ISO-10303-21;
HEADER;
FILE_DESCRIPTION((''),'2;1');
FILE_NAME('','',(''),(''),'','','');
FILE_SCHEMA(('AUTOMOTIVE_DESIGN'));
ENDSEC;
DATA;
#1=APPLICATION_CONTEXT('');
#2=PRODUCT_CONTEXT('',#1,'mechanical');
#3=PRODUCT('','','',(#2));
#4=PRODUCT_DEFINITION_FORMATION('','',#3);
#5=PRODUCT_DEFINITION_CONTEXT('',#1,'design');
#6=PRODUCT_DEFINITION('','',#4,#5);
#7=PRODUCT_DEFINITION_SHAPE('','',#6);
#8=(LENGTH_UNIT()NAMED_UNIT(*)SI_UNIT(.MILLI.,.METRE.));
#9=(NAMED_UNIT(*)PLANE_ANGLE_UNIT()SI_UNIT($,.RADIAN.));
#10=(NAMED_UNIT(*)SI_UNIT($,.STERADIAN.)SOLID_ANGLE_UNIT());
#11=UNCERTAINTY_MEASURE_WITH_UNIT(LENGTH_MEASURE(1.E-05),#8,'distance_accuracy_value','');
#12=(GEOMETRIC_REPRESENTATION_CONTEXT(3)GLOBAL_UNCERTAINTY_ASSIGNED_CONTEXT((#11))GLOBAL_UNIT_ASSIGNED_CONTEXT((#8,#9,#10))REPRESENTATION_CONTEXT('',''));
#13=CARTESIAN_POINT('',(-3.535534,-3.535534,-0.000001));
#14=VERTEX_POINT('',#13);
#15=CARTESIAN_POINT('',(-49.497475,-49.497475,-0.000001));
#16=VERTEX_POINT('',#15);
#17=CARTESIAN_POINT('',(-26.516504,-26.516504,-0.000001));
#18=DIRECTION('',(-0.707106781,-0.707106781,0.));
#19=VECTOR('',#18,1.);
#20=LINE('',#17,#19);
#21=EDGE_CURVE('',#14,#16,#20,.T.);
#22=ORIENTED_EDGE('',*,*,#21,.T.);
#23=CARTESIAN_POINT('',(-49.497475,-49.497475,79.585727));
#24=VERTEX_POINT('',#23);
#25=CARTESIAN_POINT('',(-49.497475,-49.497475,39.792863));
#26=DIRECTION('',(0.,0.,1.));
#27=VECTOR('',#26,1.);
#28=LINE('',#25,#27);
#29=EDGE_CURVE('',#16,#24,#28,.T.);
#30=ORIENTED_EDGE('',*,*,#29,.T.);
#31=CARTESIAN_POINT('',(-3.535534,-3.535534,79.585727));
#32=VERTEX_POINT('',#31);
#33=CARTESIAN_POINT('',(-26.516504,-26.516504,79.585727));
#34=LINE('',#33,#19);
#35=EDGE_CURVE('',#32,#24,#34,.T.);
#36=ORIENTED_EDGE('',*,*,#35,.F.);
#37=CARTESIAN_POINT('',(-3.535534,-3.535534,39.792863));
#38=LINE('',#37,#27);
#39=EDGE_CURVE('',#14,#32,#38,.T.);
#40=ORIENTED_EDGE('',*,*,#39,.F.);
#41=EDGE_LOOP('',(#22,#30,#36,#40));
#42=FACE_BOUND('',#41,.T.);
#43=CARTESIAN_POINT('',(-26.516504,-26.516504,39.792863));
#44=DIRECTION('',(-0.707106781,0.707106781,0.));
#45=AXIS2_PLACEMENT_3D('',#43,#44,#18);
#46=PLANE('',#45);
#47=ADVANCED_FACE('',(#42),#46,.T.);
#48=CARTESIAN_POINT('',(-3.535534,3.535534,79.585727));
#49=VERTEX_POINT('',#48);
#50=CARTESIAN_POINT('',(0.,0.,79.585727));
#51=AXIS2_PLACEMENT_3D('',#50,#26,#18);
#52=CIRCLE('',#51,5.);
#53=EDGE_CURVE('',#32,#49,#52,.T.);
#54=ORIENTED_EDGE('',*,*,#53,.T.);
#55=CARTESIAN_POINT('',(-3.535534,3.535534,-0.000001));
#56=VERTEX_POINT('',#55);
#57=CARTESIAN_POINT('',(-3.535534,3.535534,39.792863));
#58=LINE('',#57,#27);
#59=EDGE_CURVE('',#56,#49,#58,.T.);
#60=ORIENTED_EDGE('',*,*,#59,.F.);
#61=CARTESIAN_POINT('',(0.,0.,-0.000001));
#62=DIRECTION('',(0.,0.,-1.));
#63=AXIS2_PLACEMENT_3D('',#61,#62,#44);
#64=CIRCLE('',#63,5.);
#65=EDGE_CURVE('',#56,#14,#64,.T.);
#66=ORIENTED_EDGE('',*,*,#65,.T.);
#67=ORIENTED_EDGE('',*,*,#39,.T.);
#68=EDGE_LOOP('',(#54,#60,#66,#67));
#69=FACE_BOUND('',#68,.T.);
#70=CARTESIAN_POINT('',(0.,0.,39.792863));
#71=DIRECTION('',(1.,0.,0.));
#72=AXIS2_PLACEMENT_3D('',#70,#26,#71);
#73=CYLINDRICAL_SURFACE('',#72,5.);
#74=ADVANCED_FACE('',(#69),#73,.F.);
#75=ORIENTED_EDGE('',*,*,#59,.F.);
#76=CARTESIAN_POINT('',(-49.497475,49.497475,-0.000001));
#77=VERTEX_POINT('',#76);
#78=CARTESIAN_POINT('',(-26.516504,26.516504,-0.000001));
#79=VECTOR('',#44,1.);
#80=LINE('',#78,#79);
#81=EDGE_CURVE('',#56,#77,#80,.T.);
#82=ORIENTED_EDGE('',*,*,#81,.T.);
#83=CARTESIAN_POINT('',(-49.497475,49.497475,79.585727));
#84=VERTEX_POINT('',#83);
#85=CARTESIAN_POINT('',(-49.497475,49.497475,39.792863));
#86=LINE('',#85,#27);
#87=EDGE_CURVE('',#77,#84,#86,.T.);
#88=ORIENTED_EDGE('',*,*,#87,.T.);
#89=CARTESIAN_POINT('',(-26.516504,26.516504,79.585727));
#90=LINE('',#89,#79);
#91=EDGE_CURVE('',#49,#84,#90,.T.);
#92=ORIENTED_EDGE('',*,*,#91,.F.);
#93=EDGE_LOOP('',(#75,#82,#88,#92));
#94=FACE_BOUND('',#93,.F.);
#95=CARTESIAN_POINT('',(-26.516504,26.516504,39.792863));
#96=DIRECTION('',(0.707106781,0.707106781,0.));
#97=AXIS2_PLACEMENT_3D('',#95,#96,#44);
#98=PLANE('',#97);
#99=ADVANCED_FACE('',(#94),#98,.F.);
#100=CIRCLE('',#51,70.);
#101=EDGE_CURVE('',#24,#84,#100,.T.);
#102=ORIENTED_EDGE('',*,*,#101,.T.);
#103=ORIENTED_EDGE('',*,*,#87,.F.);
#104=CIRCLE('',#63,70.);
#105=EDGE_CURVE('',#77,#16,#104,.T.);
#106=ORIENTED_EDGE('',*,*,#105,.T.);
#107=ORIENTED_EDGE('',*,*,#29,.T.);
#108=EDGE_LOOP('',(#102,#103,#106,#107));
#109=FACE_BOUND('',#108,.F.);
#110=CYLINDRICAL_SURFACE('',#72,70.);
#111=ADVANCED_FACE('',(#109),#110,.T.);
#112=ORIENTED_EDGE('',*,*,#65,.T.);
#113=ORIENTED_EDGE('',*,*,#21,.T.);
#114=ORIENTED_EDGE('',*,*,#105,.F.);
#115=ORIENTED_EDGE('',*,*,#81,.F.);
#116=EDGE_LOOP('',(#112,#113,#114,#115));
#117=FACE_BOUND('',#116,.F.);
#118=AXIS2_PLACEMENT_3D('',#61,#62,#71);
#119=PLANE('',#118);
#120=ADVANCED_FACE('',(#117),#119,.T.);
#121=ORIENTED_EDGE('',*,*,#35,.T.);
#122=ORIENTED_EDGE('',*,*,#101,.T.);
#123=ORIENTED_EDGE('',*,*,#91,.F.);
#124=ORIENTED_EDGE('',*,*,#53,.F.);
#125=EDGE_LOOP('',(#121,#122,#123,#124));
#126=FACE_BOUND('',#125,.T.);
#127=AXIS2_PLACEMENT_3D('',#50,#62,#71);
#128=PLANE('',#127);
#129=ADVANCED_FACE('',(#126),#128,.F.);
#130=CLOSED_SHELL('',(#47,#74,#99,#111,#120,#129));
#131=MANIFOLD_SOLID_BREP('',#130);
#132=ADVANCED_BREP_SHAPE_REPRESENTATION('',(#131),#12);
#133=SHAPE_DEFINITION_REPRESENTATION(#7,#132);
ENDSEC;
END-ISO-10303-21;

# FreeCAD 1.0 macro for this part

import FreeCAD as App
import Part
import Sketcher


def add_polygon(sketch, points):
    """Adds a closed chain of lines whose ends are joined by coincident constraints."""
    first, n = sketch.GeometryCount, len(points)
    for a, b in zip(points, points[1:] + points[:1]):
        sketch.addGeometry(Part.LineSegment(App.Vector(*a, 0), App.Vector(*b, 0)), False)
    for i in range(n):
        sketch.addConstraint(Sketcher.Constraint("Coincident", first + i, 2, first + (i + 1) % n, 1))

doc = App.newDocument("Part")
params = doc.addObject("Spreadsheet::Sheet", "Params")
for row, (alias, value) in enumerate([
    ("sketch1_width", "65 mm"),
    ("revolution_angle", "135 deg"),
    ("sketch2_width", "65 mm"),
    ("revolution2_angle", "135 deg"),
], start=1):
    params.set(f"A{row}", alias)
    params.set(f"B{row}", "=" + value)
    params.setAlias(f"B{row}", alias)

body = doc.addObject("PartDesign::Body", "Body")

# Sketch on XZ plane
sketch1 = body.newObject("Sketcher::SketchObject", "Sketch")
sketch1.AttachmentSupport = (doc.getObject("XZ_Plane"), [""])
sketch1.MapMode = "FlatFace"
add_polygon(sketch1, [(5, 80), (5, 0), (70, 0), (70, 80)])  # lines 0-3
sketch1.addConstraint([
    Sketcher.Constraint("Vertical", 0),
    Sketcher.Constraint("Horizontal", 1),
    Sketcher.Constraint("Vertical", 2),
    Sketcher.Constraint("Horizontal", 3),
    Sketcher.Constraint("PointOnObject", 0, 2, -1),
    Sketcher.Constraint("DistanceX", 1, 1, 1, 2, 65.0),
    Sketcher.Constraint("DistanceX", -1, 1, 0, 2, 5.0),
    Sketcher.Constraint("DistanceY", 0, 2, 0, 1, 79.585727),
])
sketch1.setExpression("Constraints[9]", "Params.sketch1_width")
revolution = body.newObject("PartDesign::Revolution", "Revolution")
revolution.Profile = sketch1
revolution.ReferenceAxis = (sketch1, ["V_Axis"])
revolution.setExpression("Angle", "Params.revolution_angle")

# Sketch on XZ plane
sketch2 = body.newObject("Sketcher::SketchObject", "Sketch001")
sketch2.AttachmentSupport = (doc.getObject("XZ_Plane"), [""])
sketch2.MapMode = "FlatFace"
add_polygon(sketch2, [(5, 80), (5, 0), (70, 0), (70, 80)])  # lines 0-3
sketch2.addConstraint([
    Sketcher.Constraint("Vertical", 0),
    Sketcher.Constraint("Horizontal", 1),
    Sketcher.Constraint("Vertical", 2),
    Sketcher.Constraint("Horizontal", 3),
    Sketcher.Constraint("PointOnObject", 0, 2, -1),
    Sketcher.Constraint("DistanceX", 1, 1, 1, 2, 65.0),
    Sketcher.Constraint("DistanceX", -1, 1, 0, 2, 5.0),
    Sketcher.Constraint("DistanceY", 0, 2, 0, 1, 79.585727),
])
sketch2.setExpression("Constraints[9]", "Params.sketch2_width")
revolution2 = body.newObject("PartDesign::Revolution", "Revolution001")
revolution2.Profile = sketch2
revolution2.ReferenceAxis = (sketch2, ["V_Axis"])
revolution2.setExpression("Angle", "Params.revolution2_angle")
revolution2.Reversed = True

doc.recompute()
